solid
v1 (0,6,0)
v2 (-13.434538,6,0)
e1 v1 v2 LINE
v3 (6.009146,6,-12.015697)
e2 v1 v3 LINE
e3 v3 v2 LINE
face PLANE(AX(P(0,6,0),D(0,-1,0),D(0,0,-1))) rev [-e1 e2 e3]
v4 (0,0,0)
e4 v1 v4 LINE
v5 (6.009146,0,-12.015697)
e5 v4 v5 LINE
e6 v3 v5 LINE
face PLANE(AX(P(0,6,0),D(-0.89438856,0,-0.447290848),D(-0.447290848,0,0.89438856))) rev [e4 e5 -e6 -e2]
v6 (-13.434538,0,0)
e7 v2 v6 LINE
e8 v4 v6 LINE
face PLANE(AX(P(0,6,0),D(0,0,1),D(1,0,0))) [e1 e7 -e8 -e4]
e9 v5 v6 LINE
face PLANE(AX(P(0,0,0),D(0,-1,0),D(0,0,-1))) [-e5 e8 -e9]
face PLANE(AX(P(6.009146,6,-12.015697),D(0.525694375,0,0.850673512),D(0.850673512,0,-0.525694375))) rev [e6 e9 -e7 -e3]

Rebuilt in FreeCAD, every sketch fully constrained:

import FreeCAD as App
import Part
import Sketcher
Q = App.Units.Quantity

doc = App.newDocument("Part")
body = doc.addObject("PartDesign::Body", "Body")

sketch1 = body.newObject("Sketcher::SketchObject", "Sketch")
sketch1.AttachmentSupport = (doc.getObject("XZ_Plane"), [""])
sketch1.MapMode = "FlatFace"
sketch1.addGeometry([
    Part.LineSegment(App.Vector(-13, 0, 0), App.Vector(0, 0, 0)),
    Part.LineSegment(App.Vector(0, 0, 0), App.Vector(6, -12, 0)),
    Part.LineSegment(App.Vector(6, -12, 0), App.Vector(-13, 0, 0)),
], False)
sketch1.addConstraint([
    Sketcher.Constraint("Coincident", 0, 2, 1, 1),
    Sketcher.Constraint("Coincident", 1, 2, 2, 1),
    Sketcher.Constraint("Coincident", 2, 2, 0, 1),
    Sketcher.Constraint("Horizontal", 0),
    Sketcher.Constraint("Coincident", 0, 2, -1, 1),
    Sketcher.Constraint("Angle", 1, Q("-63.43 deg")),
    Sketcher.Constraint("Distance", 2, Q("22.856811 mm")),
    Sketcher.Constraint("DistanceX", 0, 1, 0, 2, Q("13.434538 mm")),
])
pad1 = body.newObject("PartDesign::Pad", "Pad")
pad1.Profile = sketch1
pad1.Length = 6
pad1.Reversed = True

doc.recompute()
